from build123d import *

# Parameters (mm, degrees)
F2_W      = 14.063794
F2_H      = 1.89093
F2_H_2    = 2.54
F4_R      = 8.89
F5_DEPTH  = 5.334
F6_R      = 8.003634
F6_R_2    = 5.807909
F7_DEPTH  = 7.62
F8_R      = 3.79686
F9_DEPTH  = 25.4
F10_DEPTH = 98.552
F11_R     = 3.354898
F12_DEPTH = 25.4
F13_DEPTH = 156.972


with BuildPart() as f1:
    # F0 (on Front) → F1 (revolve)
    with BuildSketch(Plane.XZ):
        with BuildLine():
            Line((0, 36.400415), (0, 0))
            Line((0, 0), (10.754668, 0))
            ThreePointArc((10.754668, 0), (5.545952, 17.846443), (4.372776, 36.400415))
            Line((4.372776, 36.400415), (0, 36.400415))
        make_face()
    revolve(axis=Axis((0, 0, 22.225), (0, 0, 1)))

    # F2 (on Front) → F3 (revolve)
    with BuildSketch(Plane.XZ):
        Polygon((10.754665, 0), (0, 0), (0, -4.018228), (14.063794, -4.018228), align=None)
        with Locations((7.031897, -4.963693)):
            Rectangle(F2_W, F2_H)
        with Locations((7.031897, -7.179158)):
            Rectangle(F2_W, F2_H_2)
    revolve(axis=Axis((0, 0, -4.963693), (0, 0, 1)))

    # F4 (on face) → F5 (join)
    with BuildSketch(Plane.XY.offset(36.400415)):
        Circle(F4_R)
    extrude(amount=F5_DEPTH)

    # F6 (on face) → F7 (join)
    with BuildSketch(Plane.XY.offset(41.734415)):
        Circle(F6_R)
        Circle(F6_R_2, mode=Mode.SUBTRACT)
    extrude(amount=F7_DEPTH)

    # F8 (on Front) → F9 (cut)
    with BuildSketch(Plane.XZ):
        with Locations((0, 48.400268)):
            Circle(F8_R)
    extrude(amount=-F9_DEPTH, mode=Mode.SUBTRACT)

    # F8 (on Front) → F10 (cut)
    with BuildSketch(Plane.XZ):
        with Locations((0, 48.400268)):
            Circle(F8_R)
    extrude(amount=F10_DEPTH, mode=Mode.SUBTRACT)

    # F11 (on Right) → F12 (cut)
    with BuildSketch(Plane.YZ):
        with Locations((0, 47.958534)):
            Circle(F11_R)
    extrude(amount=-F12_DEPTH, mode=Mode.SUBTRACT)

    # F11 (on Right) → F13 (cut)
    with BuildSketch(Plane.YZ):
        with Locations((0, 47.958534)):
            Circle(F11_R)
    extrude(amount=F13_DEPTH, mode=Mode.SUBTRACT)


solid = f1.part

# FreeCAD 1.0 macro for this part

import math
import FreeCAD as App
import Part
import Sketcher
from FreeCAD import Vector
Q = App.Units.Quantity

doc = App.newDocument("Part")
body = doc.addObject("PartDesign::Body", "Body")

# Sketch on XZ plane
sketch1 = doc.addObject("Sketcher::SketchObject", "Sketch")
body.addObject(sketch1)
sketch1.AttachmentSupport = (doc.XZ_Plane, [""])
sketch1.MapMode = "FlatFace"
sketch1.addGeometry(Part.LineSegment(Vector(0, 36.4, 0), Vector(0, 0, 0)), False)
sketch1.addGeometry(Part.LineSegment(Vector(0, 0, 0), Vector(10.8, 0, 0)), False)
sketch1.addGeometry(Part.ArcOfCircle(Part.Circle(Vector(88.6, 32.4, 0), Vector(0, 0, 1), 84.4), math.radians(177), math.radians(203)), False)
sketch1.addGeometry(Part.LineSegment(Vector(4.4, 36.4, 0), Vector(0, 36.4, 0)), False)
sketch1.addConstraint(Sketcher.Constraint("Coincident", 0, 2, 1, 1))
sketch1.addConstraint(Sketcher.Constraint("Coincident", 1, 2, 2, 2))
sketch1.addConstraint(Sketcher.Constraint("Coincident", 2, 1, 3, 1))
sketch1.addConstraint(Sketcher.Constraint("Coincident", 3, 2, 0, 1))
sketch1.addConstraint(Sketcher.Constraint("Vertical", 0))
sketch1.addConstraint(Sketcher.Constraint("Horizontal", 1))
sketch1.addConstraint(Sketcher.Constraint("Horizontal", 3))
sketch1.addConstraint(Sketcher.Constraint("Coincident", 0, 2, -1, 1))
sketch1.addConstraint(Sketcher.Constraint("Radius", 2, 84.358871))
sketch1.addConstraint(Sketcher.Constraint("DistanceX", 1, 1, 1, 2, 10.754668))
sketch1.addConstraint(Sketcher.Constraint("DistanceX", 3, 2, 3, 1, 4.372776))
sketch1.addConstraint(Sketcher.Constraint("DistanceY", 0, 2, 0, 1, 36.400415))
revolution = doc.addObject("PartDesign::Revolution", "Revolution")
body.addObject(revolution)
revolution.Profile = sketch1
revolution.ReferenceAxis = (sketch1, ["V_Axis"])
revolution.Angle = 360

# Sketch on XZ plane
sketch2 = doc.addObject("Sketcher::SketchObject", "Sketch001")
body.addObject(sketch2)
sketch2.AttachmentSupport = (doc.XZ_Plane, [""])
sketch2.MapMode = "FlatFace"
sketch2.addGeometry(Part.LineSegment(Vector(10.8, 0, 0), Vector(0, 0, 0)), False)
sketch2.addGeometry(Part.LineSegment(Vector(0, 0, 0), Vector(0, -8.4, 0)), False)
sketch2.addGeometry(Part.LineSegment(Vector(0, -8.4, 0), Vector(14.1, -8.4, 0)), False)
sketch2.addGeometry(Part.LineSegment(Vector(14.1, -8.4, 0), Vector(14.1, -4, 0)), False)
sketch2.addGeometry(Part.LineSegment(Vector(14.1, -4, 0), Vector(10.8, 0, 0)), False)
sketch2.addConstraint(Sketcher.Constraint("Coincident", 0, 2, 1, 1))
sketch2.addConstraint(Sketcher.Constraint("Coincident", 1, 2, 2, 1))
sketch2.addConstraint(Sketcher.Constraint("Coincident", 2, 2, 3, 1))
sketch2.addConstraint(Sketcher.Constraint("Coincident", 3, 2, 4, 1))
sketch2.addConstraint(Sketcher.Constraint("Coincident", 4, 2, 0, 1))
sketch2.addConstraint(Sketcher.Constraint("Horizontal", 0))
sketch2.addConstraint(Sketcher.Constraint("Vertical", 1))
sketch2.addConstraint(Sketcher.Constraint("Horizontal", 2))
sketch2.addConstraint(Sketcher.Constraint("Vertical", 3))
sketch2.addConstraint(Sketcher.Constraint("Coincident", 0, 2, -1, 1))
sketch2.addConstraint(Sketcher.Constraint("DistanceY", 1, 2, 1, 1, 8.449158))
sketch2.addConstraint(Sketcher.Constraint("DistanceY", 3, 1, 3, 2, 4.43093))
sketch2.addConstraint(Sketcher.Constraint("Distance", 4, 5.205429))
sketch2.addConstraint(Sketcher.Constraint("DistanceX", 0, 2, 0, 1, 10.754665))
revolution2 = doc.addObject("PartDesign::Revolution", "Revolution001")
body.addObject(revolution2)
revolution2.Profile = sketch2
revolution2.ReferenceAxis = (sketch2, ["V_Axis"])
revolution2.Angle = 360

# Sketch on XY plane
sketch3 = doc.addObject("Sketcher::SketchObject", "Sketch002")
body.addObject(sketch3)
sketch3.AttachmentSupport = (doc.XY_Plane, [""])
sketch3.MapMode = "FlatFace"
sketch3.AttachmentOffset = App.Placement(Vector(0, 0, 36.400415), App.Rotation())
sketch3.addGeometry(Part.Circle(Vector(0, 0, 0), Vector(0, 0, 1), 9), False)
sketch3.addConstraint(Sketcher.Constraint("Coincident", 0, 3, -1, 1))
sketch3.addConstraint(Sketcher.Constraint("Diameter", 0, Q("0.7 in")))
pad1 = doc.addObject("PartDesign::Pad", "Pad")
body.addObject(pad1)
pad1.Profile = sketch3
pad1.Length = Q("0.21 in")

# Sketch on XY plane
sketch4 = doc.addObject("Sketcher::SketchObject", "Sketch003")
body.addObject(sketch4)
sketch4.AttachmentSupport = (doc.XY_Plane, [""])
sketch4.MapMode = "FlatFace"
sketch4.AttachmentOffset = App.Placement(Vector(0, 0, 41.734415), App.Rotation())
sketch4.addGeometry(Part.Circle(Vector(0, 0, 0), Vector(0, 0, 1), 8), False)
sketch4.addGeometry(Part.Circle(Vector(0, 0, 0), Vector(0, 0, 1), 6), False)
sketch4.addConstraint(Sketcher.Constraint("Coincident", 0, 3, -1, 1))
sketch4.addConstraint(Sketcher.Constraint("Coincident", 1, 3, -1, 1))
sketch4.addConstraint(Sketcher.Constraint("Diameter", 0, 16.007268))
sketch4.addConstraint(Sketcher.Constraint("Diameter", 1, 11.615818))
pad2 = doc.addObject("PartDesign::Pad", "Pad001")
body.addObject(pad2)
pad2.Profile = sketch4
pad2.Length = Q("0.3 in")

# Sketch on XZ plane
sketch5 = doc.addObject("Sketcher::SketchObject", "Sketch004")
body.addObject(sketch5)
sketch5.AttachmentSupport = (doc.XZ_Plane, [""])
sketch5.MapMode = "FlatFace"
sketch5.addGeometry(Part.Circle(Vector(0, 48.4, 0), Vector(0, 0, 1), 3.8), False)
sketch5.addConstraint(Sketcher.Constraint("PointOnObject", 0, 3, -2))
sketch5.addConstraint(Sketcher.Constraint("Diameter", 0, 7.59372))
sketch5.addConstraint(Sketcher.Constraint("DistanceY", -1, 1, 0, 3, 48.400268))
pocket1 = doc.addObject("PartDesign::Pocket", "Pocket")
body.addObject(pocket1)
pocket1.Profile = sketch5
pocket1.Length = Q("1 in")

# Sketch on XZ plane
sketch6 = doc.addObject("Sketcher::SketchObject", "Sketch005")
body.addObject(sketch6)
sketch6.AttachmentSupport = (doc.XZ_Plane, [""])
sketch6.MapMode = "FlatFace"
sketch6.addGeometry(Part.Circle(Vector(0, 48.4, 0), Vector(0, 0, 1), 3.8), False)
sketch6.addConstraint(Sketcher.Constraint("PointOnObject", 0, 3, -2))
sketch6.addConstraint(Sketcher.Constraint("Diameter", 0, 7.59372))
sketch6.addConstraint(Sketcher.Constraint("DistanceY", -1, 1, 0, 3, 48.400268))
pocket2 = doc.addObject("PartDesign::Pocket", "Pocket001")
body.addObject(pocket2)
pocket2.Profile = sketch6
pocket2.Length = Q("3.88 in")
pocket2.Reversed = True

# Sketch on YZ plane
sketch7 = doc.addObject("Sketcher::SketchObject", "Sketch006")
body.addObject(sketch7)
sketch7.AttachmentSupport = (doc.YZ_Plane, [""])
sketch7.MapMode = "FlatFace"
sketch7.addGeometry(Part.Circle(Vector(0, 48, 0), Vector(0, 0, 1), 3.4), False)
sketch7.addConstraint(Sketcher.Constraint("PointOnObject", 0, 3, -2))
sketch7.addConstraint(Sketcher.Constraint("Diameter", 0, 6.709796))
sketch7.addConstraint(Sketcher.Constraint("DistanceY", -1, 1, 0, 3, 47.958534))
pocket3 = doc.addObject("PartDesign::Pocket", "Pocket002")
body.addObject(pocket3)
pocket3.Profile = sketch7
pocket3.Length = Q("1 in")

# Sketch on YZ plane
sketch8 = doc.addObject("Sketcher::SketchObject", "Sketch007")
body.addObject(sketch8)
sketch8.AttachmentSupport = (doc.YZ_Plane, [""])
sketch8.MapMode = "FlatFace"
sketch8.addGeometry(Part.Circle(Vector(0, 48, 0), Vector(0, 0, 1), 3.4), False)
sketch8.addConstraint(Sketcher.Constraint("PointOnObject", 0, 3, -2))
sketch8.addConstraint(Sketcher.Constraint("Diameter", 0, 6.709796))
sketch8.addConstraint(Sketcher.Constraint("DistanceY", -1, 1, 0, 3, 47.958534))
pocket4 = doc.addObject("PartDesign::Pocket", "Pocket003")
body.addObject(pocket4)
pocket4.Profile = sketch8
pocket4.Length = Q("6.18 in")
pocket4.Reversed = True

doc.recompute()
